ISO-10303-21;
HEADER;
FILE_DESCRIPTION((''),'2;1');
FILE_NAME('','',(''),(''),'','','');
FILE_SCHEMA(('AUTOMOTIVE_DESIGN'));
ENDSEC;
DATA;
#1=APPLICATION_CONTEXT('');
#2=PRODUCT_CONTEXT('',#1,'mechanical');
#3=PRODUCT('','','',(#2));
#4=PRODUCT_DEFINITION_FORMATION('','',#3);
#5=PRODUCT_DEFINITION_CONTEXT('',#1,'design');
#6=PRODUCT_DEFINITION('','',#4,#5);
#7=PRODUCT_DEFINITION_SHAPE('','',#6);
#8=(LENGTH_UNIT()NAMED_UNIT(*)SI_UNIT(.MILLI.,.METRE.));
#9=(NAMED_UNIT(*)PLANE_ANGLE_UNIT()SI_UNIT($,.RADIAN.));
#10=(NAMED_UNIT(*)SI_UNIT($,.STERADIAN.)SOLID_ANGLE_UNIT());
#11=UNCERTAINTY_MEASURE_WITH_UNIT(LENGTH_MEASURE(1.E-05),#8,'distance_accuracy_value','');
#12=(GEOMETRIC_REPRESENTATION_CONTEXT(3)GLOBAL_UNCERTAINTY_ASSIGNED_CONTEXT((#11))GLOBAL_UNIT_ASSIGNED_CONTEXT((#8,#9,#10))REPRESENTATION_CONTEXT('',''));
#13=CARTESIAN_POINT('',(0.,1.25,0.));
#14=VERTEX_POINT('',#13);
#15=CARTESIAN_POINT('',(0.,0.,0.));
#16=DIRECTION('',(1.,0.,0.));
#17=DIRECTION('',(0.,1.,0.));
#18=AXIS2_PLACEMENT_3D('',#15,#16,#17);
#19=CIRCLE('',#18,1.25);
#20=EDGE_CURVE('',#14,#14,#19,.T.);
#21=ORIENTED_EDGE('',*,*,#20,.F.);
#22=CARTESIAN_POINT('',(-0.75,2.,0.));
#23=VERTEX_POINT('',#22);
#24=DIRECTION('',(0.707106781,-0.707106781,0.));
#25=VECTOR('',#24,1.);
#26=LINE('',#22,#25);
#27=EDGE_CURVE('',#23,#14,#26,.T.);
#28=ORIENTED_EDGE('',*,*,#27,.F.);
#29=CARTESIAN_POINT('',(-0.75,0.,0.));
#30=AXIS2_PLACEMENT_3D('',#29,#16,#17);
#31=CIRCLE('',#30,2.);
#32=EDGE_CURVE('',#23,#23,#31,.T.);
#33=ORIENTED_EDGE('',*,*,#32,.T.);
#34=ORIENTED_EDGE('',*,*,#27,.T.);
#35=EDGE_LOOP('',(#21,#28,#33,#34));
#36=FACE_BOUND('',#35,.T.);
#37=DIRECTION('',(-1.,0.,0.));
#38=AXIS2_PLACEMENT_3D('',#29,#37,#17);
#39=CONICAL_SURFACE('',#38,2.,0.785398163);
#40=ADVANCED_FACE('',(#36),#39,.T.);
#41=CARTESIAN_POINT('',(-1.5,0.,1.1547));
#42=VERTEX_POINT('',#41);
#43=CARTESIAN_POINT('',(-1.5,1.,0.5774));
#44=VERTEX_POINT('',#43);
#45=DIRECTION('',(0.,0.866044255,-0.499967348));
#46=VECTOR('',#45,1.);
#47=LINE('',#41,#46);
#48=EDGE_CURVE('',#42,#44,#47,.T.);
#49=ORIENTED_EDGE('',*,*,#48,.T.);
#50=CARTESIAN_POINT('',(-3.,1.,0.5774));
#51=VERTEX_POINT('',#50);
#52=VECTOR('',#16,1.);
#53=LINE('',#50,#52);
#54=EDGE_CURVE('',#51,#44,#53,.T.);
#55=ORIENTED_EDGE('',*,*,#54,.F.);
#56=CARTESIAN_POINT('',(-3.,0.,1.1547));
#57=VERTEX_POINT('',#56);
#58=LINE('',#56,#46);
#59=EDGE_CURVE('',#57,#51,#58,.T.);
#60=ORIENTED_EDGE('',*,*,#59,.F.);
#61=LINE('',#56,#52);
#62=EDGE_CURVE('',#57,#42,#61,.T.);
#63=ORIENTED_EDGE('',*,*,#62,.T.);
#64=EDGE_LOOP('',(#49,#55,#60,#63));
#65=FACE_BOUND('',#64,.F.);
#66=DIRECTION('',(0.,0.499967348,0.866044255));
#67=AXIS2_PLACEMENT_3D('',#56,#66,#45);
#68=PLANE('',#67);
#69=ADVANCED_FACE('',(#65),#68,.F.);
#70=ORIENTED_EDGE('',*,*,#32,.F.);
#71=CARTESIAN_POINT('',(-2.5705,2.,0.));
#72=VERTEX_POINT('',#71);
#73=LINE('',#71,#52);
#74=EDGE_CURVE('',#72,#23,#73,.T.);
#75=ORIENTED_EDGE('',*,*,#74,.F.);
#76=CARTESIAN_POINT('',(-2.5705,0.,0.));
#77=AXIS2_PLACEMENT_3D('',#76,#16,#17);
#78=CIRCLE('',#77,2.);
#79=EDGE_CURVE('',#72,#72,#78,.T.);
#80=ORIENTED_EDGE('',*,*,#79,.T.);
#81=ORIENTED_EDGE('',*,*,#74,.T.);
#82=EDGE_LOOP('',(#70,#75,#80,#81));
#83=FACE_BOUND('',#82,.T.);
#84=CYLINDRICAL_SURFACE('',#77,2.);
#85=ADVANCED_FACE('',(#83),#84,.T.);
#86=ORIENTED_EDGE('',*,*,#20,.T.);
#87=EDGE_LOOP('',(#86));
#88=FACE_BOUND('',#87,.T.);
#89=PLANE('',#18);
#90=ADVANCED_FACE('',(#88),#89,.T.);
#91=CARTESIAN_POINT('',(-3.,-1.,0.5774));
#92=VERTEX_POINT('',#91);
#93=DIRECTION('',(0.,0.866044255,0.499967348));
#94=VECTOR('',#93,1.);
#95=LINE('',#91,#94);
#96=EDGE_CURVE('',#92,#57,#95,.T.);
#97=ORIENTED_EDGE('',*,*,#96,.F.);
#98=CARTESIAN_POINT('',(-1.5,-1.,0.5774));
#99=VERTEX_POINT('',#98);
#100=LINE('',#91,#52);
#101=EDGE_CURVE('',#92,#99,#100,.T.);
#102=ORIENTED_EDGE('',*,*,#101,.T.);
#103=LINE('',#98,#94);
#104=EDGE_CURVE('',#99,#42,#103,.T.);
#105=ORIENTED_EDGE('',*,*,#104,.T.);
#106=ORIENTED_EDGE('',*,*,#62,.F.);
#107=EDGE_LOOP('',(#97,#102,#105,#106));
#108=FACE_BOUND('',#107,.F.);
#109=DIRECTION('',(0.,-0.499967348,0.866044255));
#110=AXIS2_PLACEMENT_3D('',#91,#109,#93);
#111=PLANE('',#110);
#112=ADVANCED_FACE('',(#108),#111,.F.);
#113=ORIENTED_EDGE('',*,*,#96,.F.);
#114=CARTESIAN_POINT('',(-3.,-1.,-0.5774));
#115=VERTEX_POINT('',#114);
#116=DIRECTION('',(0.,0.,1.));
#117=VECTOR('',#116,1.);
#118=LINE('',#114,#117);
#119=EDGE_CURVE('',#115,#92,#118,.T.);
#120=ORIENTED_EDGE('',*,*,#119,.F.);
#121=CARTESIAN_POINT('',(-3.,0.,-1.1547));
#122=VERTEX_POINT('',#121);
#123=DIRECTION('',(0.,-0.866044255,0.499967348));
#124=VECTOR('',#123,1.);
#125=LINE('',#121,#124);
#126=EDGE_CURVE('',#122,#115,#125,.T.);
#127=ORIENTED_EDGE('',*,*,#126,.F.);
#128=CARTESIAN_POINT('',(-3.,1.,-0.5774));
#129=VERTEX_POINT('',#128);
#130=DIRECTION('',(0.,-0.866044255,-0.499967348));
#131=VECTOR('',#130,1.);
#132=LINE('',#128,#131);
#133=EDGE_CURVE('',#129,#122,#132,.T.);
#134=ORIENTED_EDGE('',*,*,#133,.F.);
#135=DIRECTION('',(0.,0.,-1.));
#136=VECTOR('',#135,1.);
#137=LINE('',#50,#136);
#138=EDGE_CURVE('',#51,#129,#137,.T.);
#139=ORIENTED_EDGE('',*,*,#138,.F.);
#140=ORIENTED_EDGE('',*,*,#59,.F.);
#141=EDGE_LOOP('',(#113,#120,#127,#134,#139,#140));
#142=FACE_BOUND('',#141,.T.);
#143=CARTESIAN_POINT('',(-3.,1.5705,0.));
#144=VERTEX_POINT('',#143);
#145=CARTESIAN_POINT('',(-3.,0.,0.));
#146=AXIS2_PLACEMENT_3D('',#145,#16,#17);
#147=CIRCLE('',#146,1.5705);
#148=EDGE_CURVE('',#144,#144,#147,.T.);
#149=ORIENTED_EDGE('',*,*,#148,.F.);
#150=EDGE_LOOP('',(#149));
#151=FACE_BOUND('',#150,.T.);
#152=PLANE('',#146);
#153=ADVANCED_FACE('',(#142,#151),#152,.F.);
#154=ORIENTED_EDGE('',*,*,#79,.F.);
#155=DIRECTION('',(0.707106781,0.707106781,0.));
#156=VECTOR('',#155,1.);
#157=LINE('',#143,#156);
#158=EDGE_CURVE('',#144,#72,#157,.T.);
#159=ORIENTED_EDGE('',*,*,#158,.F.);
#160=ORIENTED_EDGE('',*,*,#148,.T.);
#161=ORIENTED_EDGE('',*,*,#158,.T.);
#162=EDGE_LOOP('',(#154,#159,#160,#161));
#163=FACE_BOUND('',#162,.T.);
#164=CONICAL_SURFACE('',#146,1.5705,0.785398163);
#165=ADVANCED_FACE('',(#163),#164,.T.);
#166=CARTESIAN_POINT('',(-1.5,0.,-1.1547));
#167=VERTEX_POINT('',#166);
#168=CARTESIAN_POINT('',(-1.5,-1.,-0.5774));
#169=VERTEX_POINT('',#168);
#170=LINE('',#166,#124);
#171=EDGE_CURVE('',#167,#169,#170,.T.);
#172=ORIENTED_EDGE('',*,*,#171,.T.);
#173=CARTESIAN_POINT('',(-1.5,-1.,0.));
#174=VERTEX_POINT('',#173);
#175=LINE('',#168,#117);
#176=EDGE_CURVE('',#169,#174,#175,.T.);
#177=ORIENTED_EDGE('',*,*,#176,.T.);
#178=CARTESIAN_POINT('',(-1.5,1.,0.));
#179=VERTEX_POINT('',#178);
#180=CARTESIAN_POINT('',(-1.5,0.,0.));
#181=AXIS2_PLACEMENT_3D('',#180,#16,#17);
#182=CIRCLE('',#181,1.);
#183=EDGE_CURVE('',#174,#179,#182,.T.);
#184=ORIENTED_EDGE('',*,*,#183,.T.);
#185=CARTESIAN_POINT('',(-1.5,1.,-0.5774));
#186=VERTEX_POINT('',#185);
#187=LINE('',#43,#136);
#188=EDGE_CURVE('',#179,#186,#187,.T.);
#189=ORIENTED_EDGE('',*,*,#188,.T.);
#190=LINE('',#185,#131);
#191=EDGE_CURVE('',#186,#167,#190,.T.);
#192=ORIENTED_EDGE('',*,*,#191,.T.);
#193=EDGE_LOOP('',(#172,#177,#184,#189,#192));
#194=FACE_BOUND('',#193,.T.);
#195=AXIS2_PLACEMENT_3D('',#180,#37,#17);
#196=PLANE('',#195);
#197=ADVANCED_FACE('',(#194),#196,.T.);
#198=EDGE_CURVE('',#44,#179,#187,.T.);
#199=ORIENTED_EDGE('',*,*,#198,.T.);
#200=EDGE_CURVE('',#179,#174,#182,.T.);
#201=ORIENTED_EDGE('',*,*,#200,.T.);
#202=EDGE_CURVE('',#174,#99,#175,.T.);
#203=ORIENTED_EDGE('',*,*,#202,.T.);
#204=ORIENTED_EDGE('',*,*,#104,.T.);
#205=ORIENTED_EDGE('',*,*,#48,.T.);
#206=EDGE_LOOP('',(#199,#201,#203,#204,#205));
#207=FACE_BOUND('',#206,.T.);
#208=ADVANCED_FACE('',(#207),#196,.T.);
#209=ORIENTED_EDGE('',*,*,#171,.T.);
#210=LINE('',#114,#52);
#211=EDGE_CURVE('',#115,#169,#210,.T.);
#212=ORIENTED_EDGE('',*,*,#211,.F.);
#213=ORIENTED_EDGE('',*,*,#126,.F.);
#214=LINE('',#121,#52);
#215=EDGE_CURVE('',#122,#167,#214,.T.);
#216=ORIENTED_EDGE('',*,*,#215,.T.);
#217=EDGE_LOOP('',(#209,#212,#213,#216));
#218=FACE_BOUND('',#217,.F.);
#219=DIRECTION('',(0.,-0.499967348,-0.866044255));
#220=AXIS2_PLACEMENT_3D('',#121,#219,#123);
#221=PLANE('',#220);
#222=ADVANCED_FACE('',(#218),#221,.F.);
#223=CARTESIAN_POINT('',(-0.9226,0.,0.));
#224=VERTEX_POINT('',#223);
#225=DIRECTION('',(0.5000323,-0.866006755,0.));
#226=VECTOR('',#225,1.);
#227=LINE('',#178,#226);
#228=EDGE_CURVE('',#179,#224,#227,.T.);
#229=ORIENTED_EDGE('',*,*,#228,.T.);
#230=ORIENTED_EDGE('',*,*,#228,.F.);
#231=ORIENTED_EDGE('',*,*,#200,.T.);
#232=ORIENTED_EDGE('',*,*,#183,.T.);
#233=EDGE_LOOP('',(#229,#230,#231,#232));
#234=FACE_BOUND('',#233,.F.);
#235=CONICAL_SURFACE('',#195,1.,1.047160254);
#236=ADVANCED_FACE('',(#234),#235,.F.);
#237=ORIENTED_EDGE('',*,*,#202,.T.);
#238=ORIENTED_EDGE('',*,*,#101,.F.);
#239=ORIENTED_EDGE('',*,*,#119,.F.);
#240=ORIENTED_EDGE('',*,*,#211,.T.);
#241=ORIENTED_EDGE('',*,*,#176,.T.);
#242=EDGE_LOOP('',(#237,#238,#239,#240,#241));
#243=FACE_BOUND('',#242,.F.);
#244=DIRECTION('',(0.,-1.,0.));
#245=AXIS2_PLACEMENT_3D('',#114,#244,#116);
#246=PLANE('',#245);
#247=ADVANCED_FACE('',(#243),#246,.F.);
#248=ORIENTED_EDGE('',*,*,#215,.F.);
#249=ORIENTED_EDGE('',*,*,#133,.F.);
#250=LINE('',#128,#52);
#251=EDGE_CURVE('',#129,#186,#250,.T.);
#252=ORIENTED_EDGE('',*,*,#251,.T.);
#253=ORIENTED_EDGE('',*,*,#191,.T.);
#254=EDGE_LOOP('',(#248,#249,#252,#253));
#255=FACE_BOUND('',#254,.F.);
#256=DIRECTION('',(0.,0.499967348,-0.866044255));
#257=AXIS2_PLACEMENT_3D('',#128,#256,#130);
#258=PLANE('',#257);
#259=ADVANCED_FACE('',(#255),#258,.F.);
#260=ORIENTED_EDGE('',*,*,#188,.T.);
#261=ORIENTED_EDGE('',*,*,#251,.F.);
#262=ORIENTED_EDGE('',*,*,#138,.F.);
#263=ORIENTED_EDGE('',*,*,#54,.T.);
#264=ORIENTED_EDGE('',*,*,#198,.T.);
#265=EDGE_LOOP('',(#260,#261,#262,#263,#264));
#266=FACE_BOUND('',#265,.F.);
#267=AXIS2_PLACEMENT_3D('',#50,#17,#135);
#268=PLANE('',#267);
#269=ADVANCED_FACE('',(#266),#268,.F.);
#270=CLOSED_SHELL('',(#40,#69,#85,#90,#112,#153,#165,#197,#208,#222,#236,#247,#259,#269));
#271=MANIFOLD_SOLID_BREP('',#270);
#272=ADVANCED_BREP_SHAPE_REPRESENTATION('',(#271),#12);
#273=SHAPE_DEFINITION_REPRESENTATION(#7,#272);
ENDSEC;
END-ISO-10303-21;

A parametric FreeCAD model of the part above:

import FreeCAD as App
import Part
import Sketcher
Q = App.Units.Quantity

doc = App.newDocument("Part")
params = doc.addObject("Spreadsheet::Sheet", "Params")
for row, (alias, value) in enumerate([
    ("sketch1_width", "3 mm"),
    ("sketch1_height", "1.25 mm"),
    ("revolution_angle", "360 deg"),
    ("pocket1_length", "1.5 mm"),
    ("sketch3_height", "1 mm"),
    ("groove_angle", "360 deg"),
], start=1):
    params.set(f"A{row}", alias)
    params.set(f"B{row}", "=" + value)
    params.setAlias(f"B{row}", alias)

body = doc.addObject("PartDesign::Body", "Body")

# Sketch on XY plane
sketch1 = doc.addObject("Sketcher::SketchObject", "Sketch")
body.addObject(sketch1)
sketch1.AttachmentSupport = (doc.XY_Plane, [""])
sketch1.MapMode = "FlatFace"
sketch1.addGeometry([
    Part.LineSegment(App.Vector(-3, 0, 0), App.Vector(0, 0, 0)),  # 0
    Part.LineSegment(App.Vector(0, 0, 0), App.Vector(0, 1.2, 0)),  # 1
    Part.LineSegment(App.Vector(0, 1.2, 0), App.Vector(-0.8, 2, 0)),  # 2
    Part.LineSegment(App.Vector(-0.8, 2, 0), App.Vector(-2.6, 2, 0)),  # 3
    Part.LineSegment(App.Vector(-2.6, 2, 0), App.Vector(-3, 1.6, 0)),  # 4
    Part.LineSegment(App.Vector(-3, 1.6, 0), App.Vector(-3, 0, 0)),  # 5
], False)
sketch1.addConstraint([
    Sketcher.Constraint("Coincident", 0, 2, 1, 1),
    Sketcher.Constraint("Coincident", 1, 2, 2, 1),
    Sketcher.Constraint("Coincident", 2, 2, 3, 1),
    Sketcher.Constraint("Coincident", 3, 2, 4, 1),
    Sketcher.Constraint("Coincident", 4, 2, 5, 1),
    Sketcher.Constraint("Coincident", 5, 2, 0, 1),
    Sketcher.Constraint("Horizontal", 0),
    Sketcher.Constraint("Vertical", 1),
    Sketcher.Constraint("Horizontal", 3),
    Sketcher.Constraint("Vertical", 5),
    Sketcher.Constraint("Coincident", 0, 2, -1, 1),
    Sketcher.Constraint("Perpendicular", 2, 4),
    Sketcher.Constraint("DistanceX", 0, 1, 0, 2, Q("3 mm")),
    Sketcher.Constraint("Angle", 2, Q("135 deg")),
    Sketcher.Constraint("DistanceY", -1, 1, 2, 2, Q("2 mm")),
    Sketcher.Constraint("DistanceY", 1, 1, 1, 2, Q("1.25 mm")),
    Sketcher.Constraint("DistanceX", 3, 2, 3, 1, Q("1.8205 mm")),
])
sketch1.setExpression("Constraints[12]", "Params.sketch1_width")
sketch1.setExpression("Constraints[15]", "Params.sketch1_height")
revolution = doc.addObject("PartDesign::Revolution", "Revolution")
body.addObject(revolution)
revolution.Profile = sketch1
revolution.ReferenceAxis = (sketch1, ["H_Axis"])
revolution.setExpression("Angle", "Params.revolution_angle")

# Sketch on YZ plane
sketch2 = doc.addObject("Sketcher::SketchObject", "Sketch001")
body.addObject(sketch2)
sketch2.AttachmentSupport = (doc.YZ_Plane, [""])
sketch2.MapMode = "FlatFace"
sketch2.AttachmentOffset = App.Placement(App.Vector(0, 0, -3), App.Rotation())
sketch2.addGeometry([
    Part.LineSegment(App.Vector(0, -1.2, 0), App.Vector(-1, -0.6, 0)),  # 0
    Part.LineSegment(App.Vector(-1, -0.6, 0), App.Vector(-1, 0.6, 0)),  # 1
    Part.LineSegment(App.Vector(-1, 0.6, 0), App.Vector(0, 1.2, 0)),  # 2
    Part.LineSegment(App.Vector(0, 1.2, 0), App.Vector(1, 0.6, 0)),  # 3
    Part.LineSegment(App.Vector(1, 0.6, 0), App.Vector(1, -0.6, 0)),  # 4
    Part.LineSegment(App.Vector(1, -0.6, 0), App.Vector(0, -1.2, 0)),  # 5
], False)
sketch2.addConstraint([
    Sketcher.Constraint("Coincident", 0, 2, 1, 1),
    Sketcher.Constraint("Coincident", 1, 2, 2, 1),
    Sketcher.Constraint("Coincident", 2, 2, 3, 1),
    Sketcher.Constraint("Coincident", 3, 2, 4, 1),
    Sketcher.Constraint("Coincident", 4, 2, 5, 1),
    Sketcher.Constraint("Coincident", 5, 2, 0, 1),
    Sketcher.Constraint("Vertical", 1),
    Sketcher.Constraint("Vertical", 4),
    Sketcher.Constraint("Symmetric", 0, 2, 3, 2, -1, 1),
    Sketcher.Constraint("Symmetric", 2, 2, 5, 2, -1, 1),
    Sketcher.Constraint("PointOnObject", 2, 2, -2),
    Sketcher.Constraint("Parallel", 2, 5),
    Sketcher.Constraint("Horizontal", 1, 2, 3, 2),
    Sketcher.Constraint("DistanceX", 0, 2, -1, 1, Q("1 mm")),
    Sketcher.Constraint("DistanceY", 1, 1, 1, 2, Q("1.1548 mm")),
    Sketcher.Constraint("DistanceY", 0, 2, 2, 2, Q("1.732 mm")),
])
pocket1 = doc.addObject("PartDesign::Pocket", "Pocket")
body.addObject(pocket1)
pocket1.Profile = sketch2
pocket1.setExpression("Length", "Params.pocket1_length")
pocket1.Reversed = True

# Sketch on XY plane
sketch3 = doc.addObject("Sketcher::SketchObject", "Sketch002")
body.addObject(sketch3)
sketch3.AttachmentSupport = (doc.XY_Plane, [""])
sketch3.MapMode = "FlatFace"
sketch3.addGeometry([
    Part.LineSegment(App.Vector(-1.5, 0, 0), App.Vector(-0.9, 0, 0)),
    Part.LineSegment(App.Vector(-0.9, 0, 0), App.Vector(-1.5, 1, 0)),
    Part.LineSegment(App.Vector(-1.5, 1, 0), App.Vector(-1.5, 0, 0)),
], False)
sketch3.addConstraint([
    Sketcher.Constraint("Coincident", 0, 2, 1, 1),
    Sketcher.Constraint("Coincident", 1, 2, 2, 1),
    Sketcher.Constraint("Coincident", 2, 2, 0, 1),
    Sketcher.Constraint("Horizontal", 0),
    Sketcher.Constraint("Vertical", 2),
    Sketcher.Constraint("PointOnObject", 0, 2, -1),
    Sketcher.Constraint("DistanceY", 2, 2, 2, 1, Q("1 mm")),
    Sketcher.Constraint("DistanceX", 1, 2, -1, 1, Q("1.5 mm")),
    Sketcher.Constraint("DistanceX", 0, 1, 0, 2, Q("0.5774 mm")),
])
sketch3.setExpression("Constraints[6]", "Params.sketch3_height")
groove = doc.addObject("PartDesign::Groove", "Groove")
body.addObject(groove)
groove.Profile = sketch3
groove.ReferenceAxis = (sketch3, ["H_Axis"])
groove.setExpression("Angle", "Params.groove_angle")

doc.recompute()
